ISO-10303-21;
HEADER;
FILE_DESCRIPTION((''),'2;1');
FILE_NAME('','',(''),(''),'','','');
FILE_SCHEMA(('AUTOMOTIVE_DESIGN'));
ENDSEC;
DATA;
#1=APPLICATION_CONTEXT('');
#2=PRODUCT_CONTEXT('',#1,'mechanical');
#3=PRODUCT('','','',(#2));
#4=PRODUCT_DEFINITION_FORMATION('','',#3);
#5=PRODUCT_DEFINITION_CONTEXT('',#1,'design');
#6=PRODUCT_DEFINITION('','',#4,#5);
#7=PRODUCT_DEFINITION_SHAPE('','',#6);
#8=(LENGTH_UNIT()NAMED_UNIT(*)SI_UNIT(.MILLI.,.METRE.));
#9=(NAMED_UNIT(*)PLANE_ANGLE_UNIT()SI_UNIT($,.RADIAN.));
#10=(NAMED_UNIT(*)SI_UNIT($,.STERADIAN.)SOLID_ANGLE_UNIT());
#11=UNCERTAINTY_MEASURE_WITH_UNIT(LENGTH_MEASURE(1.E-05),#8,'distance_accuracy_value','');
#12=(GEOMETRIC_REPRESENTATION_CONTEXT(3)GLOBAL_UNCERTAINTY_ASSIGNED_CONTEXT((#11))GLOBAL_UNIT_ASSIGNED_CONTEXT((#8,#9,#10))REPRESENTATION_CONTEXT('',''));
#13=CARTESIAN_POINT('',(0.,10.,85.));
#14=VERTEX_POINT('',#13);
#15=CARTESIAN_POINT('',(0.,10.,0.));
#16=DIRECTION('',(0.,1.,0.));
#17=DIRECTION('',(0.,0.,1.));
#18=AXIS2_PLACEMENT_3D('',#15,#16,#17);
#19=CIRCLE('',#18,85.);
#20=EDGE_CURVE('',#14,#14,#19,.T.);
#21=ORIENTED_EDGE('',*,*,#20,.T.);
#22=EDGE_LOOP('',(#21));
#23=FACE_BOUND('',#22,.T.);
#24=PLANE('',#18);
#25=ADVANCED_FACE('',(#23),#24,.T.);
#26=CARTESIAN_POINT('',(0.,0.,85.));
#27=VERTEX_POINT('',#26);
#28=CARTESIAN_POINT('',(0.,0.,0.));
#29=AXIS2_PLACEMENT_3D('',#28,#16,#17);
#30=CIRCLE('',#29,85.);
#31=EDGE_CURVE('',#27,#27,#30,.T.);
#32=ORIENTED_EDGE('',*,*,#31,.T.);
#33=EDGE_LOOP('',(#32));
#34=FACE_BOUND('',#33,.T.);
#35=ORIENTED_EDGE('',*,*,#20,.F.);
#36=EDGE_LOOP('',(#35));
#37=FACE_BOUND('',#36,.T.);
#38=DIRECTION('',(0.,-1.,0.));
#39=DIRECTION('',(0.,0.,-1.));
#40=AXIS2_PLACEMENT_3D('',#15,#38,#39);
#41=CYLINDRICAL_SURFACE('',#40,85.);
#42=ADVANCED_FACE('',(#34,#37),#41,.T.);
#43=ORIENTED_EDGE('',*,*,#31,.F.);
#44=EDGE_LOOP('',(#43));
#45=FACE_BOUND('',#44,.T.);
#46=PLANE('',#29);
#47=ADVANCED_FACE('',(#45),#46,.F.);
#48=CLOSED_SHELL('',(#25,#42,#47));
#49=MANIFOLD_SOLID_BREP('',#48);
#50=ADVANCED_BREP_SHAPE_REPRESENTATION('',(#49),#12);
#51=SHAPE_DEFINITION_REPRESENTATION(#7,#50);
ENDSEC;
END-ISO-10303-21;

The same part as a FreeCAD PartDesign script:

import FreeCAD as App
import Part
import Sketcher
Q = App.Units.Quantity

doc = App.newDocument("Part")
body = doc.addObject("PartDesign::Body", "Body")

# Sketch on XZ plane
sketch1 = doc.addObject("Sketcher::SketchObject", "Sketch")
body.addObject(sketch1)
sketch1.AttachmentSupport = (doc.XZ_Plane, [""])
sketch1.MapMode = "FlatFace"
sketch1.addGeometry(Part.Circle(App.Vector(0, 0, 0), App.Vector(0, 0, 1), 85), False)
sketch1.addConstraint([
    Sketcher.Constraint("Coincident", 0, 3, -1, 1),
    Sketcher.Constraint("Diameter", 0, Q("170 mm")),
])
pad1 = doc.addObject("PartDesign::Pad", "Pad")
body.addObject(pad1)
pad1.Profile = sketch1
pad1.Length = 10
pad1.Reversed = True

doc.recompute()
